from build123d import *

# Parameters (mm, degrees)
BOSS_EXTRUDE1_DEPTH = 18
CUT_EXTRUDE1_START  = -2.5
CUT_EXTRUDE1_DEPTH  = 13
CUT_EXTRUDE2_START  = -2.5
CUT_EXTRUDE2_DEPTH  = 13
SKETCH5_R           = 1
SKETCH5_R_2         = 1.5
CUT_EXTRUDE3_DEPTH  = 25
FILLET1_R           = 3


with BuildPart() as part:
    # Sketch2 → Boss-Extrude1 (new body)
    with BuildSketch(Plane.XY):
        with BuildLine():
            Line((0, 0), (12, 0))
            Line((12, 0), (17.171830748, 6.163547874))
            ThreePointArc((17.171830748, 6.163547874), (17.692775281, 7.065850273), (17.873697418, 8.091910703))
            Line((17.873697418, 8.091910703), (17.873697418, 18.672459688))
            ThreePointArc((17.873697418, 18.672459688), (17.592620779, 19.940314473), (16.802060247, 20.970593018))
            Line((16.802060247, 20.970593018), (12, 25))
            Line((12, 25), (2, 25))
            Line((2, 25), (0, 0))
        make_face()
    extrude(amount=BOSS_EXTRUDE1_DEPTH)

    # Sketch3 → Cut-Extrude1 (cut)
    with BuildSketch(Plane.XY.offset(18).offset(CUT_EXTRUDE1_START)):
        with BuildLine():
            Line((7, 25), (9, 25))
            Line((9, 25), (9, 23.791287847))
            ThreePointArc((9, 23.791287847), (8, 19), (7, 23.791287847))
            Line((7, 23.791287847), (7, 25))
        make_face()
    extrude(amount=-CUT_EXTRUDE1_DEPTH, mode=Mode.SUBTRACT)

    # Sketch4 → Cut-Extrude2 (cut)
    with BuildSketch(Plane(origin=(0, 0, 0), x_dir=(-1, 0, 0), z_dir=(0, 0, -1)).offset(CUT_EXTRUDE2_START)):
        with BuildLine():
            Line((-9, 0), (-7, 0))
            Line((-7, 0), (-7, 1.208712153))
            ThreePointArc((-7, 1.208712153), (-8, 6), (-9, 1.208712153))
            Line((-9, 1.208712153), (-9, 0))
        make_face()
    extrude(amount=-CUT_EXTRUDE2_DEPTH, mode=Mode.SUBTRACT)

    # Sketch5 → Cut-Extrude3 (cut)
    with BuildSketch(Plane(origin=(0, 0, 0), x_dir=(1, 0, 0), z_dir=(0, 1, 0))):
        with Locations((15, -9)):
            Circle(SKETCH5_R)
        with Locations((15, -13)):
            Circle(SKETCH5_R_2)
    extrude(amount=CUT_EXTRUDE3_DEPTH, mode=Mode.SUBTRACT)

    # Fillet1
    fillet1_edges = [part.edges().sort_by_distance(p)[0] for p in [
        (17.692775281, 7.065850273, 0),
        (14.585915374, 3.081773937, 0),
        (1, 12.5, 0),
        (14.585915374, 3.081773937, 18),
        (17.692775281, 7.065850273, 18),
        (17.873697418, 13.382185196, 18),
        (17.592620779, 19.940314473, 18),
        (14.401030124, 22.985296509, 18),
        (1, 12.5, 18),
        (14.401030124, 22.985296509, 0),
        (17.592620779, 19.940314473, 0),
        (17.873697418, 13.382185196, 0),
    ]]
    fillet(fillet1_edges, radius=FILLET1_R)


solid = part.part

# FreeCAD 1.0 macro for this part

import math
import FreeCAD as App
import Part
import Sketcher
Q = App.Units.Quantity


def edges_at(feature, points):
    """Names of the edges that pass closest to the given points."""
    edges = feature.Shape.Edges
    near = lambda p: min(range(len(edges)), key=lambda i: edges[i].distToShape(Part.Vertex(*p))[0])
    return sorted({f"Edge{near(p) + 1}" for p in points})

doc = App.newDocument("Part")
body = doc.addObject("PartDesign::Body", "Body")

sketch1 = body.newObject("Sketcher::SketchObject", "Sketch")
sketch1.AttachmentSupport = (doc.getObject("XY_Plane"), [""])
sketch1.MapMode = "FlatFace"
sketch1.addGeometry([
    Part.LineSegment(App.Vector(0, 0, 0), App.Vector(12, 0, 0)),
    Part.LineSegment(App.Vector(12, 0, 0), App.Vector(17.2, 6.2, 0)),
    Part.ArcOfCircle(Part.Circle(App.Vector(14.9, 8.1, 0), App.Vector(0, 0, 1), 3), math.radians(-40), math.radians(0)),
    Part.LineSegment(App.Vector(17.9, 8.1, 0), App.Vector(17.9, 18.7, 0)),
    Part.ArcOfCircle(Part.Circle(App.Vector(14.9, 18.7, 0), App.Vector(0, 0, 1), 3), math.radians(0), math.radians(50)),
    Part.LineSegment(App.Vector(16.8, 21, 0), App.Vector(12, 25, 0)),
    Part.LineSegment(App.Vector(12, 25, 0), App.Vector(2, 25, 0)),
    Part.LineSegment(App.Vector(2, 25, 0), App.Vector(0, 0, 0)),
], False)
sketch1.addConstraint([
    Sketcher.Constraint("Coincident", 0, 2, 1, 1),
    Sketcher.Constraint("Tangent", 1, 2, 2, 1),
    Sketcher.Constraint("Tangent", 2, 2, 3, 1),
    Sketcher.Constraint("Tangent", 3, 2, 4, 1),
    Sketcher.Constraint("Tangent", 4, 2, 5, 1),
    Sketcher.Constraint("Coincident", 5, 2, 6, 1),
    Sketcher.Constraint("Coincident", 6, 2, 7, 1),
    Sketcher.Constraint("Coincident", 7, 2, 0, 1),
    Sketcher.Constraint("Horizontal", 0),
    Sketcher.Constraint("Vertical", 3),
    Sketcher.Constraint("Horizontal", 6),
    Sketcher.Constraint("Coincident", 7, 2, -1, 1),
    Sketcher.Constraint("Equal", 2, 4),
    Sketcher.Constraint("Perpendicular", 1, 5),
    Sketcher.Constraint("Vertical", 0, 2, 5, 2),
    Sketcher.Constraint("Radius", 2, 3.0),
    Sketcher.Constraint("DistanceX", 0, 1, 0, 2, 12.0),
    Sketcher.Constraint("DistanceX", 6, 2, 6, 1, 10.0),
    Sketcher.Constraint("Angle", 1, Q("50 deg")),
    Sketcher.Constraint("DistanceY", -1, 1, 5, 2, 25.0),
    Sketcher.Constraint("DistanceY", 3, 1, 3, 2, 10.580549),
])
pad1 = body.newObject("PartDesign::Pad", "Pad")
pad1.Profile = sketch1
pad1.Length = 18

sketch2 = body.newObject("Sketcher::SketchObject", "Sketch001")
sketch2.AttachmentSupport = (doc.getObject("XY_Plane"), [""])
sketch2.MapMode = "FlatFace"
sketch2.AttachmentOffset = App.Placement(App.Vector(0, 0, 15.5), App.Rotation())
sketch2.addGeometry([
    Part.LineSegment(App.Vector(9, 25, 0), App.Vector(7, 25, 0)),
    Part.LineSegment(App.Vector(7, 25, 0), App.Vector(7, 23.8, 0)),
    Part.ArcOfCircle(Part.Circle(App.Vector(8, 21.5, 0), App.Vector(0, 0, 1), 2.5), math.radians(114), math.radians(426)),
    Part.LineSegment(App.Vector(9, 23.8, 0), App.Vector(9, 25, 0)),
], False)
sketch2.addConstraint([
    Sketcher.Constraint("Coincident", 0, 2, 1, 1),
    Sketcher.Constraint("Coincident", 1, 2, 2, 1),
    Sketcher.Constraint("Coincident", 2, 2, 3, 1),
    Sketcher.Constraint("Coincident", 3, 2, 0, 1),
    Sketcher.Constraint("Horizontal", 0),
    Sketcher.Constraint("Vertical", 1),
    Sketcher.Constraint("Vertical", 3),
    Sketcher.Constraint("Horizontal", 1, 2, 2, 2),
    Sketcher.Constraint("Radius", 2, 2.5),
    Sketcher.Constraint("DistanceX", 0, 2, 0, 1, 2.0),
    Sketcher.Constraint("DistanceX", -1, 1, 2, 3, 8.0),
    Sketcher.Constraint("DistanceY", -1, 1, 0, 2, 25.0),
    Sketcher.Constraint("DistanceY", -1, 1, 2, 3, 21.5),
])
pocket1 = body.newObject("PartDesign::Pocket", "Pocket")
pocket1.Profile = sketch2
pocket1.Length = 13

sketch3 = body.newObject("Sketcher::SketchObject", "Sketch002")
sketch3.AttachmentSupport = (doc.getObject("XY_Plane"), [""])
sketch3.MapMode = "FlatFace"
sketch3.AttachmentOffset = App.Placement(App.Vector(0, 0, 2.5), App.Rotation())
sketch3.addGeometry([
    Part.LineSegment(App.Vector(9, 0, 0), App.Vector(7, 0, 0)),
    Part.LineSegment(App.Vector(7, 0, 0), App.Vector(7, 1.2, 0)),
    Part.ArcOfCircle(Part.Circle(App.Vector(8, 3.5, 0), App.Vector(0, 0, 1), 2.5), math.radians(-66), math.radians(246)),
    Part.LineSegment(App.Vector(9, 1.2, 0), App.Vector(9, 0, 0)),
], False)
sketch3.addConstraint([
    Sketcher.Constraint("Coincident", 0, 2, 1, 1),
    Sketcher.Constraint("Coincident", 1, 2, 2, 2),
    Sketcher.Constraint("Coincident", 2, 1, 3, 1),
    Sketcher.Constraint("Coincident", 3, 2, 0, 1),
    Sketcher.Constraint("Horizontal", 0),
    Sketcher.Constraint("Vertical", 1),
    Sketcher.Constraint("Vertical", 3),
    Sketcher.Constraint("PointOnObject", 0, 2, -1),
    Sketcher.Constraint("Horizontal", 1, 2, 2, 1),
    Sketcher.Constraint("Radius", 2, 2.5),
    Sketcher.Constraint("DistanceX", 0, 2, 0, 1, 2.0),
    Sketcher.Constraint("DistanceX", -1, 1, 2, 3, 8.0),
    Sketcher.Constraint("DistanceY", -1, 1, 2, 3, 3.5),
])
pocket2 = body.newObject("PartDesign::Pocket", "Pocket001")
pocket2.Profile = sketch3
pocket2.Length = 13
pocket2.Reversed = True

sketch4 = body.newObject("Sketcher::SketchObject", "Sketch003")
sketch4.AttachmentSupport = (doc.getObject("XZ_Plane"), [""])
sketch4.MapMode = "FlatFace"
sketch4.addGeometry([
    Part.Circle(App.Vector(15, 9, 0), App.Vector(0, 0, 1), 1),
    Part.Circle(App.Vector(15, 13, 0), App.Vector(0, 0, 1), 1.5),
], False)
sketch4.addConstraint([
    Sketcher.Constraint("Vertical", 0, 3, 1, 3),
    Sketcher.Constraint("Diameter", 0, 2.0),
    Sketcher.Constraint("Diameter", 1, 3.0),
    Sketcher.Constraint("DistanceX", -1, 1, 0, 3, 15.0),
    Sketcher.Constraint("DistanceY", -1, 1, 0, 3, 9.0),
    Sketcher.Constraint("DistanceY", -1, 1, 1, 3, 13.0),
])
pocket3 = body.newObject("PartDesign::Pocket", "Pocket002")
pocket3.Profile = sketch4
pocket3.Length = 25
doc.recompute()

fillet = body.newObject("PartDesign::Fillet", "Fillet")
fillet.Base = (pocket3, edges_at(pocket3, [
    (17.693, 7.066, 0),
    (14.586, 3.082, 0),
    (1, 12.5, 0),
    (14.586, 3.082, 18),
    (17.693, 7.066, 18),
    (17.874, 13.382, 18),
    (17.593, 19.94, 18),
    (14.401, 22.985, 18),
    (1, 12.5, 18),
    (14.401, 22.985, 0),
    (17.593, 19.94, 0),
    (17.874, 13.382, 0),
]))
fillet.Radius = 3

doc.recompute()
